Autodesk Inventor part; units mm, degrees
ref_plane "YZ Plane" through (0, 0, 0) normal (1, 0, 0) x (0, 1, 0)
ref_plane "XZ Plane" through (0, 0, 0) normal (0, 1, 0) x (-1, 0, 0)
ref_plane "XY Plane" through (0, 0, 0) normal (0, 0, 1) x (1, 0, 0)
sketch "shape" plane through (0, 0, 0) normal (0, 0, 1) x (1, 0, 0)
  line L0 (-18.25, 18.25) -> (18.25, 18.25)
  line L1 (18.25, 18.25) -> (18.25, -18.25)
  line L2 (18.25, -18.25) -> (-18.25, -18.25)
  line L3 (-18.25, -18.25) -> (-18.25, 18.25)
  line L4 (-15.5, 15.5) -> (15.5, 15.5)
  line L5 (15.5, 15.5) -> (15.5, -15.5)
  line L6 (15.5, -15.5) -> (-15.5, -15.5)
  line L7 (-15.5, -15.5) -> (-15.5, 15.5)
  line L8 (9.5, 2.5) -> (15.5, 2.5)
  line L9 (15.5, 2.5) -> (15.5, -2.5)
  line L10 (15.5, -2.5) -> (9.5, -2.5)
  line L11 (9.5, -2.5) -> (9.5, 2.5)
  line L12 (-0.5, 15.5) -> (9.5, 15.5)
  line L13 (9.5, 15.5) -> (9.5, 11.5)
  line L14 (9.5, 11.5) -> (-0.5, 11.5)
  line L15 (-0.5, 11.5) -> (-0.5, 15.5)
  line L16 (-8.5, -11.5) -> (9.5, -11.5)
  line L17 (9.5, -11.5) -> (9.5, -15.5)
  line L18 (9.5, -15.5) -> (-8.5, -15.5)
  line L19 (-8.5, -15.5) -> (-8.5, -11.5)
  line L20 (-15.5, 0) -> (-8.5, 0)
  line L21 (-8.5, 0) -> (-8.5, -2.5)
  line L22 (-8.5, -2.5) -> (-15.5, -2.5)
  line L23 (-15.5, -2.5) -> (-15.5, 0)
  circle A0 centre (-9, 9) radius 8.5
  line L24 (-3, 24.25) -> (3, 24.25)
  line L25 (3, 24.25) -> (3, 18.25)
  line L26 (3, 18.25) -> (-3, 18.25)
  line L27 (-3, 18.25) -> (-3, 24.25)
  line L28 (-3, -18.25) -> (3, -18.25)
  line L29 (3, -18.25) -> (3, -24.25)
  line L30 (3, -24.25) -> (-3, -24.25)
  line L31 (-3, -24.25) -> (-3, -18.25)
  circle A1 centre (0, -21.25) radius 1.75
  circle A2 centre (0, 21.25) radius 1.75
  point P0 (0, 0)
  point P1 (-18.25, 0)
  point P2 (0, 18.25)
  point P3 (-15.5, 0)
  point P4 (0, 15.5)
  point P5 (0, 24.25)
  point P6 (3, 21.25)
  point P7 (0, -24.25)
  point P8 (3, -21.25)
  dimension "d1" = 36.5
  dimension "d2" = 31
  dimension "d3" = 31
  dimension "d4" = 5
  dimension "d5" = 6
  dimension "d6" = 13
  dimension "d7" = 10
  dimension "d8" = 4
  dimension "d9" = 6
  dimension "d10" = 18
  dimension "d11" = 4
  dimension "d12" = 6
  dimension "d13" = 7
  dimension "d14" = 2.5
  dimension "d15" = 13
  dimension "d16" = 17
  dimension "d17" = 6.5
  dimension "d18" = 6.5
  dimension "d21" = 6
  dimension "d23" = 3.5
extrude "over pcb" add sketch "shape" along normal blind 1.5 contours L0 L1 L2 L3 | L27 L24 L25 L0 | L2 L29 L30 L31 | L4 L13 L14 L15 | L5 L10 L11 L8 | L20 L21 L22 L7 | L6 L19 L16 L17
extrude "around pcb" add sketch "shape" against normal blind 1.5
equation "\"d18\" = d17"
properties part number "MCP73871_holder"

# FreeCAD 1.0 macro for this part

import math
import FreeCAD as App
import Part
import Sketcher
Q = App.Units.Quantity


def add_polygon(sketch, points):
    """Adds a closed chain of lines whose ends are joined by coincident constraints."""
    first, n = sketch.GeometryCount, len(points)
    for a, b in zip(points, points[1:] + points[:1]):
        sketch.addGeometry(Part.LineSegment(App.Vector(*a, 0), App.Vector(*b, 0)), False)
    for i in range(n):
        sketch.addConstraint(Sketcher.Constraint("Coincident", first + i, 2, first + (i + 1) % n, 1))

doc = App.newDocument("Part")
params = doc.addObject("Spreadsheet::Sheet", "Params")
for row, (alias, value) in enumerate([
    ("sketch1_diameter", "3.5 mm"),
    ("sketch1_radius", "8.5 mm"),
    ("sketch1_width", "6 mm"),
    ("sketch1_width2", "10 mm"),
    ("sketch1_width3", "18 mm"),
    ("pad1_length", "1.5 mm"),
    ("sketch2_diameter", "3.5 mm"),
    ("sketch2_radius", "8.5 mm"),
    ("sketch2_width", "6 mm"),
    ("sketch2_width2", "31 mm"),
    ("sketch2_height", "36.5 mm"),
    ("pad2_length", "1.5 mm"),
], start=1):
    params.set(f"A{row}", alias)
    params.set(f"B{row}", "=" + value)
    params.setAlias(f"B{row}", alias)

body = doc.addObject("PartDesign::Body", "Body")

sketch1 = doc.addObject("Sketcher::SketchObject", "Sketch")
body.addObject(sketch1)
sketch1.AttachmentSupport = (doc.XY_Plane, [""])
sketch1.MapMode = "FlatFace"
add_polygon(sketch1, [(-3, 18.25), (-18.25, 18.25), (-18.25, -18.25), (-3, -18.25), (-3, -24.25), (3, -24.25), (3, -18.25), (18.25, -18.25), (18.25, 18.25), (3, 18.25), (3, 24.25), (-3, 24.25)])
sketch1.addGeometry(Part.LineSegment(App.Vector(-3.522774, 15.5, 0), App.Vector(-0.5, 15.5, 0)), False)
sketch1.addGeometry(Part.LineSegment(App.Vector(-0.5, 15.5, 0), App.Vector(-0.5, 11.5, 0)), False)
sketch1.addGeometry(Part.LineSegment(App.Vector(-0.5, 11.5, 0), App.Vector(9.5, 11.5, 0)), False)
sketch1.addGeometry(Part.LineSegment(App.Vector(9.5, 11.5, 0), App.Vector(9.5, 15.5, 0)), False)
sketch1.addGeometry(Part.LineSegment(App.Vector(9.5, 15.5, 0), App.Vector(15.5, 15.5, 0)), False)
sketch1.addGeometry(Part.LineSegment(App.Vector(15.5, 15.5, 0), App.Vector(15.5, 2.5, 0)), False)
sketch1.addGeometry(Part.LineSegment(App.Vector(15.5, 2.5, 0), App.Vector(9.5, 2.5, 0)), False)
sketch1.addGeometry(Part.LineSegment(App.Vector(9.5, 2.5, 0), App.Vector(9.5, -2.5, 0)), False)
sketch1.addGeometry(Part.LineSegment(App.Vector(9.5, -2.5, 0), App.Vector(15.5, -2.5, 0)), False)
sketch1.addGeometry(Part.LineSegment(App.Vector(15.5, -2.5, 0), App.Vector(15.5, -15.5, 0)), False)
sketch1.addGeometry(Part.LineSegment(App.Vector(15.5, -15.5, 0), App.Vector(9.5, -15.5, 0)), False)
sketch1.addGeometry(Part.LineSegment(App.Vector(9.5, -15.5, 0), App.Vector(9.5, -11.5, 0)), False)
sketch1.addGeometry(Part.LineSegment(App.Vector(9.5, -11.5, 0), App.Vector(-8.5, -11.5, 0)), False)
sketch1.addGeometry(Part.LineSegment(App.Vector(-8.5, -11.5, 0), App.Vector(-8.5, -15.5, 0)), False)
sketch1.addGeometry(Part.LineSegment(App.Vector(-8.5, -15.5, 0), App.Vector(-15.5, -15.5, 0)), False)
sketch1.addGeometry(Part.LineSegment(App.Vector(-15.5, -15.5, 0), App.Vector(-15.5, -2.5, 0)), False)
sketch1.addGeometry(Part.LineSegment(App.Vector(-15.5, -2.5, 0), App.Vector(-8.5, -2.5, 0)), False)
sketch1.addGeometry(Part.LineSegment(App.Vector(-8.5, -2.5, 0), App.Vector(-8.5, 0, 0)), False)
sketch1.addGeometry(Part.LineSegment(App.Vector(-8.5, 0, 0), App.Vector(-15.5, 0, 0)), False)
sketch1.addGeometry(Part.LineSegment(App.Vector(-15.5, 0, 0), App.Vector(-15.5, 3.522774, 0)), False)
sketch1.addGeometry(Part.ArcOfCircle(Part.Circle(App.Vector(-9, 9, 0), App.Vector(0, 0, 1), 8.5), math.radians(139.880833), math.radians(220.119167)), False)
sketch1.addGeometry(Part.LineSegment(App.Vector(-15.5, 14.477226, 0), App.Vector(-15.5, 15.5, 0)), False)
sketch1.addGeometry(Part.LineSegment(App.Vector(-15.5, 15.5, 0), App.Vector(-14.477226, 15.5, 0)), False)
sketch1.addGeometry(Part.ArcOfCircle(Part.Circle(App.Vector(-9, 9, 0), App.Vector(0, 0, 1), 8.5), math.radians(49.880833), math.radians(130.119167)), False)
sketch1.addGeometry(Part.Circle(App.Vector(0, 21.25, 0), App.Vector(0, 0, 1), 1.75), False)
sketch1.addGeometry(Part.Circle(App.Vector(0, -21.25, 0), App.Vector(0, 0, 1), 1.75), False)
sketch1.addConstraint([
    Sketcher.Constraint("Coincident", 12, 2, 13, 1),
    Sketcher.Constraint("Coincident", 13, 2, 14, 1),
    Sketcher.Constraint("Coincident", 14, 2, 15, 1),
    Sketcher.Constraint("Coincident", 15, 2, 16, 1),
    Sketcher.Constraint("Coincident", 16, 2, 17, 1),
    Sketcher.Constraint("Coincident", 17, 2, 18, 1),
    Sketcher.Constraint("Coincident", 18, 2, 19, 1),
    Sketcher.Constraint("Coincident", 19, 2, 20, 1),
    Sketcher.Constraint("Coincident", 20, 2, 21, 1),
    Sketcher.Constraint("Coincident", 21, 2, 22, 1),
    Sketcher.Constraint("Coincident", 22, 2, 23, 1),
    Sketcher.Constraint("Coincident", 23, 2, 24, 1),
    Sketcher.Constraint("Coincident", 24, 2, 25, 1),
    Sketcher.Constraint("Coincident", 25, 2, 26, 1),
    Sketcher.Constraint("Coincident", 26, 2, 27, 1),
    Sketcher.Constraint("Coincident", 27, 2, 28, 1),
    Sketcher.Constraint("Coincident", 28, 2, 29, 1),
    Sketcher.Constraint("Coincident", 29, 2, 30, 1),
    Sketcher.Constraint("Coincident", 30, 2, 31, 1),
    Sketcher.Constraint("Coincident", 31, 2, 32, 2),
    Sketcher.Constraint("Coincident", 32, 1, 33, 1),
    Sketcher.Constraint("Coincident", 33, 2, 34, 1),
    Sketcher.Constraint("Coincident", 34, 2, 35, 2),
    Sketcher.Constraint("Coincident", 35, 1, 12, 1),
    Sketcher.Constraint("Horizontal", 0),
    Sketcher.Constraint("Vertical", 1),
    Sketcher.Constraint("Horizontal", 2),
    Sketcher.Constraint("Vertical", 3),
    Sketcher.Constraint("Horizontal", 4),
    Sketcher.Constraint("Vertical", 5),
    Sketcher.Constraint("Horizontal", 6),
    Sketcher.Constraint("Vertical", 7),
    Sketcher.Constraint("Horizontal", 8),
    Sketcher.Constraint("Vertical", 9),
    Sketcher.Constraint("Horizontal", 10),
    Sketcher.Constraint("Vertical", 11),
    Sketcher.Constraint("Horizontal", 12),
    Sketcher.Constraint("Vertical", 13),
    Sketcher.Constraint("Horizontal", 14),
    Sketcher.Constraint("Vertical", 15),
    Sketcher.Constraint("Horizontal", 16),
    Sketcher.Constraint("Vertical", 17),
    Sketcher.Constraint("Horizontal", 18),
    Sketcher.Constraint("Vertical", 19),
    Sketcher.Constraint("Horizontal", 20),
    Sketcher.Constraint("Vertical", 21),
    Sketcher.Constraint("Horizontal", 22),
    Sketcher.Constraint("Vertical", 23),
    Sketcher.Constraint("Horizontal", 24),
    Sketcher.Constraint("Vertical", 25),
    Sketcher.Constraint("Horizontal", 26),
    Sketcher.Constraint("Vertical", 27),
    Sketcher.Constraint("Horizontal", 28),
    Sketcher.Constraint("Vertical", 29),
    Sketcher.Constraint("Horizontal", 30),
    Sketcher.Constraint("Vertical", 31),
    Sketcher.Constraint("Vertical", 33),
    Sketcher.Constraint("Horizontal", 34),
    Sketcher.Constraint("Coincident", 35, 3, 32, 3),
    Sketcher.Constraint("Equal", 32, 35),
    Sketcher.Constraint("Equal", 36, 37),
    Sketcher.Constraint("Symmetric", 36, 3, 37, 3, -1, 1),
    Sketcher.Constraint("Symmetric", 0, 2, 6, 2, -1, 1),
    Sketcher.Constraint("Symmetric", 2, 2, 8, 2, -1, 1),
    Sketcher.Constraint("Symmetric", 4, 2, 10, 2, -1, 1),
    Sketcher.Constraint("Symmetric", 16, 2, 26, 2, -1, 1),
    Sketcher.Constraint("Symmetric", 21, 2, 33, 2, -1, 1),
    Sketcher.Constraint("Symmetric", 2, 2, 5, 2, -2),
    Sketcher.Constraint("Symmetric", 21, 2, 26, 2, -2),
    Sketcher.Constraint("Symmetric", 14, 2, 23, 2, -1),
    Sketcher.Constraint("PointOnObject", 36, 3, -2),
    Sketcher.Constraint("PointOnObject", 29, 2, -1),
    Sketcher.Constraint("Horizontal", 12, 2, 15, 2),
    Sketcher.Constraint("Horizontal", 20, 2, 27, 2),
    Sketcher.Constraint("Vertical", 15, 2, 18, 2),
    Sketcher.Constraint("Vertical", 25, 2, 28, 2),
    Sketcher.Constraint("Vertical", 27, 2, 30, 2),
    Sketcher.Constraint("Equal", 10, 16),
    Sketcher.Constraint("Equal", 22, 3),
    Sketcher.Constraint("Equal", 17, 21),
    Sketcher.Constraint("Equal", 34, 33),
    Sketcher.Constraint("Diameter", 36, Q("3.5 mm")),
    Sketcher.Constraint("Radius", 32, Q("8.5 mm")),
    Sketcher.Constraint("DistanceX", 4, 1, 4, 2, Q("6 mm")),
    Sketcher.Constraint("DistanceX", 14, 1, 14, 2, Q("10 mm")),
    Sketcher.Constraint("DistanceX", 24, 2, 24, 1, Q("18 mm")),
    Sketcher.Constraint("DistanceX", 26, 2, 26, 1, Q("7 mm")),
    Sketcher.Constraint("DistanceY", 13, 2, 13, 1, Q("4 mm")),
    Sketcher.Constraint("DistanceY", 17, 2, 17, 1, Q("13 mm")),
    Sketcher.Constraint("DistanceY", 19, 2, 19, 1, Q("5 mm")),
    Sketcher.Constraint("DistanceY", 1, 2, 1, 1, Q("36.5 mm")),
    Sketcher.Constraint("DistanceX", 32, 3, 2, 2, Q("6 mm")),
    Sketcher.Constraint("DistanceX", 0, 2, 7, 2, Q("36.5 mm")),
    Sketcher.Constraint("DistanceY", 0, 2, 36, 3, Q("3 mm")),
])
sketch1.setExpression("Constraints[93]", "Params.sketch1_diameter")
sketch1.setExpression("Constraints[94]", "Params.sketch1_radius")
sketch1.setExpression("Constraints[95]", "Params.sketch1_width")
sketch1.setExpression("Constraints[96]", "Params.sketch1_width2")
sketch1.setExpression("Constraints[97]", "Params.sketch1_width3")
pad1 = doc.addObject("PartDesign::Pad", "Pad")
body.addObject(pad1)
pad1.Profile = sketch1
pad1.setExpression("Length", "Params.pad1_length")

sketch2 = doc.addObject("Sketcher::SketchObject", "Sketch001")
body.addObject(sketch2)
sketch2.AttachmentSupport = (doc.XY_Plane, [""])
sketch2.MapMode = "FlatFace"
add_polygon(sketch2, [(-3, 18.25), (-18.25, 18.25), (-18.25, -18.25), (-3, -18.25), (-3, -24.25), (3, -24.25), (3, -18.25), (18.25, -18.25), (18.25, 18.25), (3, 18.25), (3, 24.25), (-3, 24.25)])
sketch2.addGeometry(Part.LineSegment(App.Vector(-3.522774, 15.5, 0), App.Vector(15.5, 15.5, 0)), False)
sketch2.addGeometry(Part.LineSegment(App.Vector(15.5, 15.5, 0), App.Vector(15.5, -15.5, 0)), False)
sketch2.addGeometry(Part.LineSegment(App.Vector(15.5, -15.5, 0), App.Vector(-15.5, -15.5, 0)), False)
sketch2.addGeometry(Part.LineSegment(App.Vector(-15.5, -15.5, 0), App.Vector(-15.5, 3.522774, 0)), False)
sketch2.addGeometry(Part.ArcOfCircle(Part.Circle(App.Vector(-9, 9, 0), App.Vector(0, 0, 1), 8.5), math.radians(139.880833), math.radians(220.119167)), False)
sketch2.addGeometry(Part.LineSegment(App.Vector(-15.5, 14.477226, 0), App.Vector(-15.5, 15.5, 0)), False)
sketch2.addGeometry(Part.LineSegment(App.Vector(-15.5, 15.5, 0), App.Vector(-14.477226, 15.5, 0)), False)
sketch2.addGeometry(Part.ArcOfCircle(Part.Circle(App.Vector(-9, 9, 0), App.Vector(0, 0, 1), 8.5), math.radians(49.880833), math.radians(130.119167)), False)
sketch2.addGeometry(Part.Circle(App.Vector(0, 21.25, 0), App.Vector(0, 0, 1), 1.75), False)
sketch2.addGeometry(Part.Circle(App.Vector(0, -21.25, 0), App.Vector(0, 0, 1), 1.75), False)
sketch2.addConstraint([
    Sketcher.Constraint("Coincident", 12, 2, 13, 1),
    Sketcher.Constraint("Coincident", 13, 2, 14, 1),
    Sketcher.Constraint("Coincident", 14, 2, 15, 1),
    Sketcher.Constraint("Coincident", 15, 2, 16, 2),
    Sketcher.Constraint("Coincident", 16, 1, 17, 1),
    Sketcher.Constraint("Coincident", 17, 2, 18, 1),
    Sketcher.Constraint("Coincident", 18, 2, 19, 2),
    Sketcher.Constraint("Coincident", 19, 1, 12, 1),
    Sketcher.Constraint("Horizontal", 0),
    Sketcher.Constraint("Vertical", 1),
    Sketcher.Constraint("Horizontal", 2),
    Sketcher.Constraint("Vertical", 3),
    Sketcher.Constraint("Horizontal", 4),
    Sketcher.Constraint("Vertical", 5),
    Sketcher.Constraint("Horizontal", 6),
    Sketcher.Constraint("Vertical", 7),
    Sketcher.Constraint("Horizontal", 8),
    Sketcher.Constraint("Vertical", 9),
    Sketcher.Constraint("Horizontal", 10),
    Sketcher.Constraint("Vertical", 11),
    Sketcher.Constraint("Horizontal", 12),
    Sketcher.Constraint("Vertical", 13),
    Sketcher.Constraint("Horizontal", 14),
    Sketcher.Constraint("Vertical", 15),
    Sketcher.Constraint("Vertical", 17),
    Sketcher.Constraint("Horizontal", 18),
    Sketcher.Constraint("Coincident", 19, 3, 16, 3),
    Sketcher.Constraint("Equal", 16, 19),
    Sketcher.Constraint("Equal", 20, 21),
    Sketcher.Constraint("Symmetric", 20, 3, 21, 3, -1, 1),
    Sketcher.Constraint("Symmetric", 0, 2, 6, 2, -1, 1),
    Sketcher.Constraint("Symmetric", 2, 2, 8, 2, -1, 1),
    Sketcher.Constraint("Symmetric", 4, 2, 10, 2, -1, 1),
    Sketcher.Constraint("Symmetric", 12, 2, 14, 2, -1, 1),
    Sketcher.Constraint("Symmetric", 13, 2, 17, 2, -1, 1),
    Sketcher.Constraint("Symmetric", 2, 2, 5, 2, -2),
    Sketcher.Constraint("PointOnObject", 20, 3, -2),
    Sketcher.Constraint("Equal", 10, 3),
    Sketcher.Constraint("Equal", 14, 13),
    Sketcher.Constraint("Equal", 12, 15),
    Sketcher.Constraint("Diameter", 20, Q("3.5 mm")),
    Sketcher.Constraint("Radius", 16, Q("8.5 mm")),
    Sketcher.Constraint("DistanceX", 4, 1, 4, 2, Q("6 mm")),
    Sketcher.Constraint("DistanceX", 14, 2, 14, 1, Q("31 mm")),
    Sketcher.Constraint("DistanceY", 1, 2, 1, 1, Q("36.5 mm")),
    Sketcher.Constraint("DistanceX", 16, 3, 2, 2, Q("6 mm")),
    Sketcher.Constraint("DistanceX", 0, 2, 7, 2, Q("36.5 mm")),
    Sketcher.Constraint("DistanceY", 0, 2, 20, 3, Q("3 mm")),
])
sketch2.setExpression("Constraints[52]", "Params.sketch2_diameter")
sketch2.setExpression("Constraints[53]", "Params.sketch2_radius")
sketch2.setExpression("Constraints[54]", "Params.sketch2_width")
sketch2.setExpression("Constraints[55]", "Params.sketch2_width2")
sketch2.setExpression("Constraints[56]", "Params.sketch2_height")
pad2 = doc.addObject("PartDesign::Pad", "Pad001")
body.addObject(pad2)
pad2.Profile = sketch2
pad2.setExpression("Length", "Params.pad2_length")
pad2.Reversed = True

doc.recompute()
